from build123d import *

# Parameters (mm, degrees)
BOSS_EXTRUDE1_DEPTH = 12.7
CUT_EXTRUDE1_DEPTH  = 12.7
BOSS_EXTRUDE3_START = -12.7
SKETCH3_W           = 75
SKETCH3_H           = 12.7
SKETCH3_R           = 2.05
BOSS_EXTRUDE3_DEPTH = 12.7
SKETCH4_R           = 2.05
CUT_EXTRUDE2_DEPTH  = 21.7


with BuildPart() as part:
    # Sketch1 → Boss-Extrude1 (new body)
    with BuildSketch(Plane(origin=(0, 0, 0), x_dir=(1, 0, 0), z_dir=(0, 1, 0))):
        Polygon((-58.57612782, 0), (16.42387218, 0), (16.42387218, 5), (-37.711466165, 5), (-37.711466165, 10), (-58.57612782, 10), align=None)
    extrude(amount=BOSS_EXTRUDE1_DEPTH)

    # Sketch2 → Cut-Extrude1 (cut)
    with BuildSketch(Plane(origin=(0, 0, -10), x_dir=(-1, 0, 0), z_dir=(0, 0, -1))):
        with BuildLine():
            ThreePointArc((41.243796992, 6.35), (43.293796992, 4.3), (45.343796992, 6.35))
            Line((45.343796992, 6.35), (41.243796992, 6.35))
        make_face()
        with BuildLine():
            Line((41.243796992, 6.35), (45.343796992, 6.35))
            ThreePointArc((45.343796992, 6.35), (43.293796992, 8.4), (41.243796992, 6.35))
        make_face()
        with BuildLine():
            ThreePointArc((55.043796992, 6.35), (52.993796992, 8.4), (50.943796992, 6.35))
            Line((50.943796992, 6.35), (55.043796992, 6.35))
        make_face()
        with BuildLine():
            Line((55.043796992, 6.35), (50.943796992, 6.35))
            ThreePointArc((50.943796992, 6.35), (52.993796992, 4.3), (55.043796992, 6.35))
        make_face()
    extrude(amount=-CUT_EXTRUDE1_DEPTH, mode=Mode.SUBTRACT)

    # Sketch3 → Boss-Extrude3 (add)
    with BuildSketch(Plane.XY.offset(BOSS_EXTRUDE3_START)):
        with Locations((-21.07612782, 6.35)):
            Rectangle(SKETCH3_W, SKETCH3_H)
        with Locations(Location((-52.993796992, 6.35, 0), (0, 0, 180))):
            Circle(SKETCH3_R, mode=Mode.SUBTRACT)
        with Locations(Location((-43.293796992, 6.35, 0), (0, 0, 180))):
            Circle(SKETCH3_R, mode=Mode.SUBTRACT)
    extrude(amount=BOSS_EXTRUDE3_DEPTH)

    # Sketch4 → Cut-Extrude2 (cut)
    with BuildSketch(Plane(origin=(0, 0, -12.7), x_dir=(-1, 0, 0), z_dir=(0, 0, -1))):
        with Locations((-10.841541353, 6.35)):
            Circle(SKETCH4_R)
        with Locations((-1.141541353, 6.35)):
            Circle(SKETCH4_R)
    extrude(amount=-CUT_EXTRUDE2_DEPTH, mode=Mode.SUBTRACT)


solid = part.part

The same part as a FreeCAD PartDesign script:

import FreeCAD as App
import Part
import Sketcher
Q = App.Units.Quantity


def add_polygon(sketch, points):
    """Adds a closed chain of lines whose ends are joined by coincident constraints."""
    first, n = sketch.GeometryCount, len(points)
    for a, b in zip(points, points[1:] + points[:1]):
        sketch.addGeometry(Part.LineSegment(App.Vector(*a, 0), App.Vector(*b, 0)), False)
    for i in range(n):
        sketch.addConstraint(Sketcher.Constraint("Coincident", first + i, 2, first + (i + 1) % n, 1))

doc = App.newDocument("Part")
body = doc.addObject("PartDesign::Body", "Body")

# Sketch on XZ plane
sketch1 = body.newObject("Sketcher::SketchObject", "Sketch")
sketch1.AttachmentSupport = (doc.getObject("XZ_Plane"), [""])
sketch1.MapMode = "FlatFace"
add_polygon(sketch1, [(-59, 0), (16, 0), (16, -5), (-38, -5), (-38, -10), (-59, -10)])  # lines 0-5
sketch1.addConstraint([
    Sketcher.Constraint("Horizontal", 0),
    Sketcher.Constraint("Vertical", 1),
    Sketcher.Constraint("Horizontal", 2),
    Sketcher.Constraint("Vertical", 3),
    Sketcher.Constraint("Horizontal", 4),
    Sketcher.Constraint("Vertical", 5),
    Sketcher.Constraint("PointOnObject", 0, 2, -1),
    Sketcher.Constraint("Equal", 1, 3),
    Sketcher.Constraint("DistanceX", 0, 1, 0, 2, Q("75 mm")),
    Sketcher.Constraint("DistanceY", 1, 2, 1, 1, Q("5 mm")),
    Sketcher.Constraint("DistanceX", 2, 2, 2, 1, Q("54.135338 mm")),
    Sketcher.Constraint("DistanceX", -1, 1, 0, 2, Q("16.423872 mm")),
])
pad1 = body.newObject("PartDesign::Pad", "Pad")
pad1.Profile = sketch1
pad1.Length = 12.7
pad1.Reversed = True

# Sketch on XY plane
sketch2 = body.newObject("Sketcher::SketchObject", "Sketch001")
sketch2.AttachmentSupport = (doc.getObject("XY_Plane"), [""])
sketch2.MapMode = "FlatFace"
sketch2.AttachmentOffset = App.Placement(App.Vector(0, 0, -10), App.Rotation())
sketch2.addGeometry([
    Part.Circle(App.Vector(-43.3, 6.3, 0), App.Vector(0, 0, 1), 2),
    Part.Circle(App.Vector(-53, 6.3, 0), App.Vector(0, 0, 1), 2),
], False)
sketch2.addConstraint([
    Sketcher.Constraint("Equal", 0, 1),
    Sketcher.Constraint("Horizontal", 0, 3, 1, 3),
    Sketcher.Constraint("Diameter", 0, Q("4.1 mm")),
    Sketcher.Constraint("DistanceX", 1, 3, 0, 3, Q("9.7 mm")),
    Sketcher.Constraint("DistanceY", -1, 1, 0, 3, Q("6.35 mm")),
    Sketcher.Constraint("DistanceX", 0, 3, -1, 1, Q("43.293797 mm")),
])
pocket1 = body.newObject("PartDesign::Pocket", "Pocket")
pocket1.Profile = sketch2
pocket1.Length = 12.7
pocket1.Reversed = True

# Sketch on XY plane
sketch3 = body.newObject("Sketcher::SketchObject", "Sketch002")
sketch3.AttachmentSupport = (doc.getObject("XY_Plane"), [""])
sketch3.MapMode = "FlatFace"
sketch3.AttachmentOffset = App.Placement(App.Vector(0, 0, -12.7), App.Rotation())
add_polygon(sketch3, [(-58.6, 12.7), (-58.6, 0), (16.4, 0), (16.4, 12.7)])  # lines 0-3
sketch3.addGeometry(Part.Circle(App.Vector(-53, 6.3, 0), App.Vector(0, 0, 1), 2), False)  # 4
sketch3.addGeometry(Part.Circle(App.Vector(-43.3, 6.3, 0), App.Vector(0, 0, 1), 2), False)  # 5
sketch3.addConstraint([
    Sketcher.Constraint("Vertical", 0),
    Sketcher.Constraint("Horizontal", 1),
    Sketcher.Constraint("Vertical", 2),
    Sketcher.Constraint("Horizontal", 3),
    Sketcher.Constraint("Equal", 4, 5),
    Sketcher.Constraint("PointOnObject", 0, 2, -1),
    Sketcher.Constraint("Horizontal", 4, 3, 5, 3),
    Sketcher.Constraint("Diameter", 4, Q("4.1 mm")),
    Sketcher.Constraint("DistanceX", 1, 1, 1, 2, Q("75 mm")),
    Sketcher.Constraint("DistanceY", 0, 2, 0, 1, Q("12.7 mm")),
    Sketcher.Constraint("DistanceX", 4, 3, 5, 3, Q("9.7 mm")),
    Sketcher.Constraint("DistanceY", -1, 1, 4, 3, Q("6.35 mm")),
    Sketcher.Constraint("DistanceX", 0, 2, 4, 3, Q("5.582331 mm")),
    Sketcher.Constraint("DistanceX", 4, 3, -1, 1, Q("52.993797 mm")),
])
pad2 = body.newObject("PartDesign::Pad", "Pad001")
pad2.Profile = sketch3
pad2.Length = 12.7

# Sketch on XY plane
sketch4 = body.newObject("Sketcher::SketchObject", "Sketch003")
sketch4.AttachmentSupport = (doc.getObject("XY_Plane"), [""])
sketch4.MapMode = "FlatFace"
sketch4.AttachmentOffset = App.Placement(App.Vector(0, 0, -12.7), App.Rotation())
sketch4.addGeometry([
    Part.Circle(App.Vector(10.8, 6.3, 0), App.Vector(0, 0, 1), 2),
    Part.Circle(App.Vector(1.1, 6.3, 0), App.Vector(0, 0, 1), 2),
], False)
sketch4.addConstraint([
    Sketcher.Constraint("Equal", 0, 1),
    Sketcher.Constraint("Horizontal", 0, 3, 1, 3),
    Sketcher.Constraint("Diameter", 0, Q("4.1 mm")),
    Sketcher.Constraint("DistanceX", 1, 3, 0, 3, Q("9.7 mm")),
    Sketcher.Constraint("DistanceY", -1, 1, 0, 3, Q("6.35 mm")),
    Sketcher.Constraint("DistanceX", -1, 1, 0, 3, Q("10.841541 mm")),
])
pocket2 = body.newObject("PartDesign::Pocket", "Pocket001")
pocket2.Profile = sketch4
pocket2.Length = 21.7
pocket2.Reversed = True

doc.recompute()
